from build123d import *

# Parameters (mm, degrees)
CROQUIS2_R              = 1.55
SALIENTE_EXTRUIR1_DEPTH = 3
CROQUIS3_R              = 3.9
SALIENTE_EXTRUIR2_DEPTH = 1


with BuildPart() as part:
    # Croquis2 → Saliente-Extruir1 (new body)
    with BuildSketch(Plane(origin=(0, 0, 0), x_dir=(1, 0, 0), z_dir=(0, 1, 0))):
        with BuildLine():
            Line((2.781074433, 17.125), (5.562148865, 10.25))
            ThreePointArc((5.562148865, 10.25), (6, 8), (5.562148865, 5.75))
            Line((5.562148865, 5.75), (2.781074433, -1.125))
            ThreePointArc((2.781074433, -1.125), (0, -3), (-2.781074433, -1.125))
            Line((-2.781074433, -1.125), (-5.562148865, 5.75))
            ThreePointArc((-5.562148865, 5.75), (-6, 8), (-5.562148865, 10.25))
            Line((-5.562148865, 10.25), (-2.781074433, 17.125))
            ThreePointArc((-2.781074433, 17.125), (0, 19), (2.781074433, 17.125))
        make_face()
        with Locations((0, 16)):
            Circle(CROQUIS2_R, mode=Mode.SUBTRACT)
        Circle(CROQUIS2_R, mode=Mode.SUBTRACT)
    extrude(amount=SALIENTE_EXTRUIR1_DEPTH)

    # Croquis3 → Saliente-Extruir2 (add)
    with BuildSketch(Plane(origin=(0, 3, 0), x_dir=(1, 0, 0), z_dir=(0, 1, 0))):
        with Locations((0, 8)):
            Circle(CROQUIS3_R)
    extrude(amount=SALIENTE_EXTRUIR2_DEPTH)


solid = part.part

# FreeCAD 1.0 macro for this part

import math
import FreeCAD as App
import Part
import Sketcher

V = App.Vector
Q = App.Units.Quantity

doc = App.newDocument("Part")
body = doc.addObject("PartDesign::Body", "Body")

sketch1 = body.newObject("Sketcher::SketchObject", "Sketch")
sketch1.AttachmentSupport = (doc.getObject("XZ_Plane"), [""])
sketch1.MapMode = "FlatFace"
sketch1.addGeometry([
    Part.LineSegment(V(5.562149, -10.25, 0), V(2.781074, -17.125, 0)),
    Part.ArcOfCircle(Part.Circle(V(0, -16, 0), V(0, 0, 1), 3), math.radians(-157.975687), math.radians(-22.024313)),
    Part.LineSegment(V(-2.781074, -17.125, 0), V(-5.562149, -10.25, 0)),
    Part.ArcOfCircle(Part.Circle(V(0, -8, 0), V(0, 0, 1), 6), math.radians(157.975687), math.radians(202.024313)),
    Part.LineSegment(V(-5.562149, -5.75, 0), V(-2.781074, 1.125, 0)),
    Part.ArcOfCircle(Part.Circle(V(0, 0, 0), V(0, 0, 1), 3), math.radians(22.024313), math.radians(157.975687)),
    Part.LineSegment(V(2.781074, 1.125, 0), V(5.562149, -5.75, 0)),
    Part.ArcOfCircle(Part.Circle(V(0, -8, 0), V(0, 0, 1), 6), math.radians(-22.024313), math.radians(22.024313)),
    Part.Circle(V(0, 0, 0), V(0, 0, 1), 1.55),
    Part.Circle(V(0, -16, 0), V(0, 0, 1), 1.55),
], False)
sketch1.addConstraint([
    Sketcher.Constraint("Tangent", 0, 2, 1, 2),
    Sketcher.Constraint("Tangent", 1, 1, 2, 1),
    Sketcher.Constraint("Tangent", 2, 2, 3, 2),
    Sketcher.Constraint("Tangent", 3, 1, 4, 1),
    Sketcher.Constraint("Tangent", 4, 2, 5, 2),
    Sketcher.Constraint("Tangent", 5, 1, 6, 1),
    Sketcher.Constraint("Tangent", 6, 2, 7, 2),
    Sketcher.Constraint("Tangent", 7, 1, 0, 1),
    Sketcher.Constraint("Coincident", 5, 3, -1, 1),
    Sketcher.Constraint("Coincident", 8, 3, -1, 1),
    Sketcher.Constraint("Coincident", 7, 3, 3, 3),
    Sketcher.Constraint("Coincident", 9, 3, 1, 3),
    Sketcher.Constraint("Equal", 1, 5),
    Sketcher.Constraint("Equal", 3, 7),
    Sketcher.Constraint("Equal", 8, 9),
    Sketcher.Constraint("Symmetric", 0, 2, 1, 1, -2),
    Sketcher.Constraint("Parallel", 0, 4),
    Sketcher.Constraint("Radius", 1, Q("3 mm")),
    Sketcher.Constraint("Radius", 3, Q("6 mm")),
    Sketcher.Constraint("Diameter", 8, Q("3.1 mm")),
    Sketcher.Constraint("DistanceY", 1, 3, -1, 1, Q("16 mm")),
])
pad1 = body.newObject("PartDesign::Pad", "Pad")
pad1.Profile = sketch1
pad1.Length = 3
pad1.Reversed = True

sketch2 = body.newObject("Sketcher::SketchObject", "Sketch001")
sketch2.AttachmentSupport = (doc.getObject("XZ_Plane"), [""])
sketch2.MapMode = "FlatFace"
sketch2.AttachmentOffset = App.Placement(V(0, 0, -3), App.Rotation())
sketch2.addGeometry(Part.Circle(V(0, -8, 0), V(0, 0, 1), 3.9), False)
sketch2.addConstraint([
    Sketcher.Constraint("PointOnObject", 0, 3, -2),
    Sketcher.Constraint("Diameter", 0, Q("7.8 mm")),
    Sketcher.Constraint("DistanceY", 0, 3, -1, 1, Q("8 mm")),
])
pad2 = body.newObject("PartDesign::Pad", "Pad001")
pad2.Profile = sketch2
pad2.Length = 1
pad2.Reversed = True

doc.recompute()
